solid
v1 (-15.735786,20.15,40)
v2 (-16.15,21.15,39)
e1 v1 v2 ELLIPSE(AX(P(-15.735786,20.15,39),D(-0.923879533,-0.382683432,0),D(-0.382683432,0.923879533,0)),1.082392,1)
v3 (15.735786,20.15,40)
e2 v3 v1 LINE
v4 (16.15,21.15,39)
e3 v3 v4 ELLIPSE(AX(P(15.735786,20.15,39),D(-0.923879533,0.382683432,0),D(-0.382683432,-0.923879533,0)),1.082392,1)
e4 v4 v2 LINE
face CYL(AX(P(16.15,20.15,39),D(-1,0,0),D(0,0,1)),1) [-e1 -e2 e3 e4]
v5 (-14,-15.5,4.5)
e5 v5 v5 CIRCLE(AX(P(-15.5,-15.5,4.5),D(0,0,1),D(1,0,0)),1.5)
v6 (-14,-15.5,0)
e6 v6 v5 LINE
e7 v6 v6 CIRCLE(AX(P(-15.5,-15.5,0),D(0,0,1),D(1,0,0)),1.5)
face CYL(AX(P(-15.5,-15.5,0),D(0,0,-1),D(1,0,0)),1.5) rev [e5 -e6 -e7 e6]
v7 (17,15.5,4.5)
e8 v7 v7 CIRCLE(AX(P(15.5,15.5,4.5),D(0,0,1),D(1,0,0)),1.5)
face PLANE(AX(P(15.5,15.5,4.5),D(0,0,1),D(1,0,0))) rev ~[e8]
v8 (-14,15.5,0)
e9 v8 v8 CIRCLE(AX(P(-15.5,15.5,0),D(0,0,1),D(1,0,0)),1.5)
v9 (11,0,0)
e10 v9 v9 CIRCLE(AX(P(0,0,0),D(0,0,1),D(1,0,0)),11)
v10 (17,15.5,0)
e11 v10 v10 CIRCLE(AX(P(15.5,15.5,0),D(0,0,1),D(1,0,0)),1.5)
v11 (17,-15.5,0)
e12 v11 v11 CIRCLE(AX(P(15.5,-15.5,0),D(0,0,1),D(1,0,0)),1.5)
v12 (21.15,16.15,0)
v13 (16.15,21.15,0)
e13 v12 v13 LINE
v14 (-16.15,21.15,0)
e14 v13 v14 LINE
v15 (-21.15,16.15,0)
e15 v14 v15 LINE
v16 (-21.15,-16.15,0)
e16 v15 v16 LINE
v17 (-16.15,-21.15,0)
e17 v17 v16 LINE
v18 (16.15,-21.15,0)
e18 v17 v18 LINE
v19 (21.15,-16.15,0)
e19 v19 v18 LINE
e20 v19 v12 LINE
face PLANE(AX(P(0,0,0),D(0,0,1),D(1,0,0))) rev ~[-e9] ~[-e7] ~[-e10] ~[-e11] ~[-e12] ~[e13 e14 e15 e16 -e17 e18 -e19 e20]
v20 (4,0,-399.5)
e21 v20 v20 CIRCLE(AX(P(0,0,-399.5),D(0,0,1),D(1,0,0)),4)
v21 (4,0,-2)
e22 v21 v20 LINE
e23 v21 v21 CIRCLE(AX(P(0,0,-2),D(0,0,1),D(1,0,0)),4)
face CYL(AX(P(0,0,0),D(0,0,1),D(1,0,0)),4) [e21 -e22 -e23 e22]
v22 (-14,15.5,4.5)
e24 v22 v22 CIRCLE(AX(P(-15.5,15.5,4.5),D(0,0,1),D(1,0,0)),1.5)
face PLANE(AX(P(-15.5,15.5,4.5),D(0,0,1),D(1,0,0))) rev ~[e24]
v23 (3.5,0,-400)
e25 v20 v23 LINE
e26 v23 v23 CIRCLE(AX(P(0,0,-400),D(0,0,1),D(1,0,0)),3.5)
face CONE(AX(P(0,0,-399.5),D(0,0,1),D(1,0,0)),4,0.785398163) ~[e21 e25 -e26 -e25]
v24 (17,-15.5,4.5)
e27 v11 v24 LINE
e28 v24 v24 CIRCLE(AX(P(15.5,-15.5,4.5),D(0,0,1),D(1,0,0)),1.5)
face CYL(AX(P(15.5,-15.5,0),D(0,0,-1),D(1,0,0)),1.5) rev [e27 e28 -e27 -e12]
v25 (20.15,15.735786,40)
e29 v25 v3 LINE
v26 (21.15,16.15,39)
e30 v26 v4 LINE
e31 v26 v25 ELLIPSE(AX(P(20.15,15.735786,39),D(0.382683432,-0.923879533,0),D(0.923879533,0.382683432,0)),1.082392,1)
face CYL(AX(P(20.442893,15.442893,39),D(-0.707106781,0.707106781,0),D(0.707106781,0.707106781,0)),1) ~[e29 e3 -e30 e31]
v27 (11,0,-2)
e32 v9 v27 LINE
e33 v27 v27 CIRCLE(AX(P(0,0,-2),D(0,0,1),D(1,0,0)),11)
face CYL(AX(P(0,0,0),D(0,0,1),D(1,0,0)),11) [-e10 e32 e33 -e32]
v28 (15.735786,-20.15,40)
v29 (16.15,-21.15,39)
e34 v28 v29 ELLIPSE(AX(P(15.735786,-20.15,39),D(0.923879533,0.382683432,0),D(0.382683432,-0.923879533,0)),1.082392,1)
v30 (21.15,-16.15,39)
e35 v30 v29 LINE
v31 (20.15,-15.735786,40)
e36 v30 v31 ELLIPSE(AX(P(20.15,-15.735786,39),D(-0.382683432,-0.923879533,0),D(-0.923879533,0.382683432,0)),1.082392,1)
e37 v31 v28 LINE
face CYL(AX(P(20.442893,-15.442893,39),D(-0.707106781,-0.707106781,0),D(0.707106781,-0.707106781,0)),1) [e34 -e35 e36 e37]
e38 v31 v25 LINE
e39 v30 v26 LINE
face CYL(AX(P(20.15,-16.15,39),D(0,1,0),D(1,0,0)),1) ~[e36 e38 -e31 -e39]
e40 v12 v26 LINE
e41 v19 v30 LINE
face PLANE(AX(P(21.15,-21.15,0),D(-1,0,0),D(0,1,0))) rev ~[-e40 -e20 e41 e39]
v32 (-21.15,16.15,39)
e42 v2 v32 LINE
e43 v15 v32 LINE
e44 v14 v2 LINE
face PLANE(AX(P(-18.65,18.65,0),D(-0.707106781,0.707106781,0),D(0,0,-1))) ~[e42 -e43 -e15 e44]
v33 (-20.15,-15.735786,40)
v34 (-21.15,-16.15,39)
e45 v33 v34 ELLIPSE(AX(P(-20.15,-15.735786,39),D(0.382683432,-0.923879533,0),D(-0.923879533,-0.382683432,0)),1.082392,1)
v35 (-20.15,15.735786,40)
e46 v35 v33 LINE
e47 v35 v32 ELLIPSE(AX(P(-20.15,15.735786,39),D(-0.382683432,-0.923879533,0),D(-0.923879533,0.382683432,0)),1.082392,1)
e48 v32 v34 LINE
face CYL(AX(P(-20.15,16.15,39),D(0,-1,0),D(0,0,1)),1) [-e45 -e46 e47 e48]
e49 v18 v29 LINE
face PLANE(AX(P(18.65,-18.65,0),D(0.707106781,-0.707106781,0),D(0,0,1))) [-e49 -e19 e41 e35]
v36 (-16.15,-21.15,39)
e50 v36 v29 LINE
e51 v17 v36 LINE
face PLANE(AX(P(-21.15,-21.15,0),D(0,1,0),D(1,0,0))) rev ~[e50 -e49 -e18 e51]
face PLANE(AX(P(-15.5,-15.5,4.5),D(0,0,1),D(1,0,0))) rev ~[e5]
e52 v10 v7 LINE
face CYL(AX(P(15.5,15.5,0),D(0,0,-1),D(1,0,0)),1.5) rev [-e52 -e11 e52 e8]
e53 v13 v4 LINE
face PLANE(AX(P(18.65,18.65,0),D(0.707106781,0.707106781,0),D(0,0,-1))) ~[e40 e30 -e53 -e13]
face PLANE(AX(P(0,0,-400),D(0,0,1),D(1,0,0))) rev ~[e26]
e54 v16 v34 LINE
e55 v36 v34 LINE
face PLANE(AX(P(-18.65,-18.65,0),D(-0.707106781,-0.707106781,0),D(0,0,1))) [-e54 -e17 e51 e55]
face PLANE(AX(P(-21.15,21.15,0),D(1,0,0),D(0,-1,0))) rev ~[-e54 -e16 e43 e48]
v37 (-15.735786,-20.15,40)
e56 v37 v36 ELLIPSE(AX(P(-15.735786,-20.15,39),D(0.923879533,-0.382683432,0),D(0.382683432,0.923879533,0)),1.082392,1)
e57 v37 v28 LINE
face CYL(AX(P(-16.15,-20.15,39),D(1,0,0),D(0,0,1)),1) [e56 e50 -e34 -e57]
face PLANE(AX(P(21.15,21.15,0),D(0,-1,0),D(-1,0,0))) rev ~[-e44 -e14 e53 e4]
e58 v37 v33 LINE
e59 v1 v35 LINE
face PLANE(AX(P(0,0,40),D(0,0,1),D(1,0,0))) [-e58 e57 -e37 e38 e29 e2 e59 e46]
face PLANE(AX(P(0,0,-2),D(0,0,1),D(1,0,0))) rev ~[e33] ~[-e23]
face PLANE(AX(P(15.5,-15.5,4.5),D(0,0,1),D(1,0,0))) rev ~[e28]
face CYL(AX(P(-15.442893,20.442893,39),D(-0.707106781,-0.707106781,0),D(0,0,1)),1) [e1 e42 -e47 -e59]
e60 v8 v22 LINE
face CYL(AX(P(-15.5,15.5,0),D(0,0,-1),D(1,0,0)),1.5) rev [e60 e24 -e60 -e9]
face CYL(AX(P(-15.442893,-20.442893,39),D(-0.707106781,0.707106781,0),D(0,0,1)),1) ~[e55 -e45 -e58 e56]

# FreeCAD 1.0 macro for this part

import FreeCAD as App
import Part
import Sketcher
from FreeCAD import Vector


def edges_at(feature, points):
    """Names of the edges that pass closest to the given points."""
    edges = feature.Shape.Edges
    near = lambda p: min(range(len(edges)), key=lambda i: edges[i].distToShape(Part.Vertex(*p))[0])
    return sorted({f"Edge{near(p) + 1}" for p in points})

doc = App.newDocument("Part")
body = doc.addObject("PartDesign::Body", "Body")

# Sketch on XY plane
sketch1 = body.newObject("Sketcher::SketchObject", "Sketch")
sketch1.AttachmentSupport = (doc.getObject("XY_Plane"), [""])
sketch1.MapMode = "FlatFace"
sketch1.addGeometry([
    Part.LineSegment(Vector(-21.15, -21.15, 0), Vector(21.15, -21.15, 0)),
    Part.LineSegment(Vector(21.15, -21.15, 0), Vector(21.15, 21.15, 0)),
    Part.LineSegment(Vector(21.15, 21.15, 0), Vector(-21.15, 21.15, 0)),
    Part.LineSegment(Vector(-21.15, 21.15, 0), Vector(-21.15, -21.15, 0)),
], False)
sketch1.addConstraint([
    Sketcher.Constraint("Coincident", 0, 2, 1, 1),
    Sketcher.Constraint("Coincident", 1, 2, 2, 1),
    Sketcher.Constraint("Coincident", 2, 2, 3, 1),
    Sketcher.Constraint("Coincident", 3, 2, 0, 1),
    Sketcher.Constraint("Horizontal", 0),
    Sketcher.Constraint("Vertical", 1),
    Sketcher.Constraint("Horizontal", 2),
    Sketcher.Constraint("Vertical", 3),
    Sketcher.Constraint("Symmetric", 0, 2, 2, 2, -1, 1),
    Sketcher.Constraint("Equal", 2, 1),
    Sketcher.Constraint("DistanceX", 0, 1, 0, 2, 42.3),
])
pad1 = body.newObject("PartDesign::Pad", "Pad")
pad1.Profile = sketch1
pad1.Length = 40

# Sketch on XY plane
sketch2 = body.newObject("Sketcher::SketchObject", "Sketch001")
sketch2.AttachmentSupport = (doc.getObject("XY_Plane"), [""])
sketch2.MapMode = "FlatFace"
sketch2.addGeometry(Part.Circle(Vector(0, 0, 0), Vector(0, 0, 1), 11), False)
sketch2.addConstraint([
    Sketcher.Constraint("Coincident", 0, 3, -1, 1),
    Sketcher.Constraint("Diameter", 0, 22.0),
])
pad2 = body.newObject("PartDesign::Pad", "Pad001")
pad2.Profile = sketch2
pad2.Length = 2
pad2.Reversed = True

# Sketch on XY plane
sketch3 = body.newObject("Sketcher::SketchObject", "Sketch002")
sketch3.AttachmentSupport = (doc.getObject("XY_Plane"), [""])
sketch3.MapMode = "FlatFace"
sketch3.addGeometry(Part.Circle(Vector(0, 0, 0), Vector(0, 0, 1), 4), False)
sketch3.addConstraint([
    Sketcher.Constraint("Coincident", 0, 3, -1, 1),
    Sketcher.Constraint("Diameter", 0, 8.0),
])
pad3 = body.newObject("PartDesign::Pad", "Pad002")
pad3.Profile = sketch3
pad3.Length = 400
pad3.Reversed = True

# Sketch on XY plane
sketch4 = body.newObject("Sketcher::SketchObject", "Sketch003")
sketch4.AttachmentSupport = (doc.getObject("XY_Plane"), [""])
sketch4.MapMode = "FlatFace"
sketch4.addGeometry([
    Part.Circle(Vector(15.5, 15.5, 0), Vector(0, 0, 1), 1.5),
    Part.Circle(Vector(-15.5, 15.5, 0), Vector(0, 0, 1), 1.5),
    Part.Circle(Vector(-15.5, -15.5, 0), Vector(0, 0, 1), 1.5),
    Part.Circle(Vector(15.5, -15.5, 0), Vector(0, 0, 1), 1.5),
], False)
sketch4.addConstraint([
    Sketcher.Constraint("Equal", 0, 1),
    Sketcher.Constraint("Equal", 1, 2),
    Sketcher.Constraint("Equal", 2, 3),
    Sketcher.Constraint("Symmetric", 0, 3, 2, 3, -1, 1),
    Sketcher.Constraint("Symmetric", 1, 3, 3, 3, -1, 1),
    Sketcher.Constraint("Symmetric", 0, 3, 1, 3, -2),
    Sketcher.Constraint("Diameter", 0, 3.0),
    Sketcher.Constraint("DistanceX", 1, 3, 0, 3, 31.0),
    Sketcher.Constraint("DistanceY", 2, 3, 1, 3, 31.0),
])
pocket1 = body.newObject("PartDesign::Pocket", "Pocket")
pocket1.Profile = sketch4
pocket1.Length = 4.5
pocket1.Reversed = True
doc.recompute()

chamfer = body.newObject("PartDesign::Chamfer", "Chamfer")
chamfer.Base = (pocket1, edges_at(pocket1, [
    (21.15, 21.15, 20),
    (-21.15, 21.15, 20),
    (-21.15, -21.15, 20),
    (21.15, -21.15, 20),
]))
chamfer.Size = 5
doc.recompute()

fillet = body.newObject("PartDesign::Fillet", "Fillet")
fillet.Base = (chamfer, edges_at(chamfer, [
    (0, 21.15, 40),
    (-18.65, 18.65, 40),
    (-21.15, 0, 40),
    (-18.65, -18.65, 40),
    (0, -21.15, 40),
    (18.65, -18.65, 40),
    (21.15, 0, 40),
    (18.65, 18.65, 40),
]))
fillet.Radius = 1
doc.recompute()

chamfer2 = body.newObject("PartDesign::Chamfer", "Chamfer001")
chamfer2.Base = (fillet, edges_at(fillet, [(-4, 0, -400)]))
chamfer2.Size = 0.5

doc.recompute()
